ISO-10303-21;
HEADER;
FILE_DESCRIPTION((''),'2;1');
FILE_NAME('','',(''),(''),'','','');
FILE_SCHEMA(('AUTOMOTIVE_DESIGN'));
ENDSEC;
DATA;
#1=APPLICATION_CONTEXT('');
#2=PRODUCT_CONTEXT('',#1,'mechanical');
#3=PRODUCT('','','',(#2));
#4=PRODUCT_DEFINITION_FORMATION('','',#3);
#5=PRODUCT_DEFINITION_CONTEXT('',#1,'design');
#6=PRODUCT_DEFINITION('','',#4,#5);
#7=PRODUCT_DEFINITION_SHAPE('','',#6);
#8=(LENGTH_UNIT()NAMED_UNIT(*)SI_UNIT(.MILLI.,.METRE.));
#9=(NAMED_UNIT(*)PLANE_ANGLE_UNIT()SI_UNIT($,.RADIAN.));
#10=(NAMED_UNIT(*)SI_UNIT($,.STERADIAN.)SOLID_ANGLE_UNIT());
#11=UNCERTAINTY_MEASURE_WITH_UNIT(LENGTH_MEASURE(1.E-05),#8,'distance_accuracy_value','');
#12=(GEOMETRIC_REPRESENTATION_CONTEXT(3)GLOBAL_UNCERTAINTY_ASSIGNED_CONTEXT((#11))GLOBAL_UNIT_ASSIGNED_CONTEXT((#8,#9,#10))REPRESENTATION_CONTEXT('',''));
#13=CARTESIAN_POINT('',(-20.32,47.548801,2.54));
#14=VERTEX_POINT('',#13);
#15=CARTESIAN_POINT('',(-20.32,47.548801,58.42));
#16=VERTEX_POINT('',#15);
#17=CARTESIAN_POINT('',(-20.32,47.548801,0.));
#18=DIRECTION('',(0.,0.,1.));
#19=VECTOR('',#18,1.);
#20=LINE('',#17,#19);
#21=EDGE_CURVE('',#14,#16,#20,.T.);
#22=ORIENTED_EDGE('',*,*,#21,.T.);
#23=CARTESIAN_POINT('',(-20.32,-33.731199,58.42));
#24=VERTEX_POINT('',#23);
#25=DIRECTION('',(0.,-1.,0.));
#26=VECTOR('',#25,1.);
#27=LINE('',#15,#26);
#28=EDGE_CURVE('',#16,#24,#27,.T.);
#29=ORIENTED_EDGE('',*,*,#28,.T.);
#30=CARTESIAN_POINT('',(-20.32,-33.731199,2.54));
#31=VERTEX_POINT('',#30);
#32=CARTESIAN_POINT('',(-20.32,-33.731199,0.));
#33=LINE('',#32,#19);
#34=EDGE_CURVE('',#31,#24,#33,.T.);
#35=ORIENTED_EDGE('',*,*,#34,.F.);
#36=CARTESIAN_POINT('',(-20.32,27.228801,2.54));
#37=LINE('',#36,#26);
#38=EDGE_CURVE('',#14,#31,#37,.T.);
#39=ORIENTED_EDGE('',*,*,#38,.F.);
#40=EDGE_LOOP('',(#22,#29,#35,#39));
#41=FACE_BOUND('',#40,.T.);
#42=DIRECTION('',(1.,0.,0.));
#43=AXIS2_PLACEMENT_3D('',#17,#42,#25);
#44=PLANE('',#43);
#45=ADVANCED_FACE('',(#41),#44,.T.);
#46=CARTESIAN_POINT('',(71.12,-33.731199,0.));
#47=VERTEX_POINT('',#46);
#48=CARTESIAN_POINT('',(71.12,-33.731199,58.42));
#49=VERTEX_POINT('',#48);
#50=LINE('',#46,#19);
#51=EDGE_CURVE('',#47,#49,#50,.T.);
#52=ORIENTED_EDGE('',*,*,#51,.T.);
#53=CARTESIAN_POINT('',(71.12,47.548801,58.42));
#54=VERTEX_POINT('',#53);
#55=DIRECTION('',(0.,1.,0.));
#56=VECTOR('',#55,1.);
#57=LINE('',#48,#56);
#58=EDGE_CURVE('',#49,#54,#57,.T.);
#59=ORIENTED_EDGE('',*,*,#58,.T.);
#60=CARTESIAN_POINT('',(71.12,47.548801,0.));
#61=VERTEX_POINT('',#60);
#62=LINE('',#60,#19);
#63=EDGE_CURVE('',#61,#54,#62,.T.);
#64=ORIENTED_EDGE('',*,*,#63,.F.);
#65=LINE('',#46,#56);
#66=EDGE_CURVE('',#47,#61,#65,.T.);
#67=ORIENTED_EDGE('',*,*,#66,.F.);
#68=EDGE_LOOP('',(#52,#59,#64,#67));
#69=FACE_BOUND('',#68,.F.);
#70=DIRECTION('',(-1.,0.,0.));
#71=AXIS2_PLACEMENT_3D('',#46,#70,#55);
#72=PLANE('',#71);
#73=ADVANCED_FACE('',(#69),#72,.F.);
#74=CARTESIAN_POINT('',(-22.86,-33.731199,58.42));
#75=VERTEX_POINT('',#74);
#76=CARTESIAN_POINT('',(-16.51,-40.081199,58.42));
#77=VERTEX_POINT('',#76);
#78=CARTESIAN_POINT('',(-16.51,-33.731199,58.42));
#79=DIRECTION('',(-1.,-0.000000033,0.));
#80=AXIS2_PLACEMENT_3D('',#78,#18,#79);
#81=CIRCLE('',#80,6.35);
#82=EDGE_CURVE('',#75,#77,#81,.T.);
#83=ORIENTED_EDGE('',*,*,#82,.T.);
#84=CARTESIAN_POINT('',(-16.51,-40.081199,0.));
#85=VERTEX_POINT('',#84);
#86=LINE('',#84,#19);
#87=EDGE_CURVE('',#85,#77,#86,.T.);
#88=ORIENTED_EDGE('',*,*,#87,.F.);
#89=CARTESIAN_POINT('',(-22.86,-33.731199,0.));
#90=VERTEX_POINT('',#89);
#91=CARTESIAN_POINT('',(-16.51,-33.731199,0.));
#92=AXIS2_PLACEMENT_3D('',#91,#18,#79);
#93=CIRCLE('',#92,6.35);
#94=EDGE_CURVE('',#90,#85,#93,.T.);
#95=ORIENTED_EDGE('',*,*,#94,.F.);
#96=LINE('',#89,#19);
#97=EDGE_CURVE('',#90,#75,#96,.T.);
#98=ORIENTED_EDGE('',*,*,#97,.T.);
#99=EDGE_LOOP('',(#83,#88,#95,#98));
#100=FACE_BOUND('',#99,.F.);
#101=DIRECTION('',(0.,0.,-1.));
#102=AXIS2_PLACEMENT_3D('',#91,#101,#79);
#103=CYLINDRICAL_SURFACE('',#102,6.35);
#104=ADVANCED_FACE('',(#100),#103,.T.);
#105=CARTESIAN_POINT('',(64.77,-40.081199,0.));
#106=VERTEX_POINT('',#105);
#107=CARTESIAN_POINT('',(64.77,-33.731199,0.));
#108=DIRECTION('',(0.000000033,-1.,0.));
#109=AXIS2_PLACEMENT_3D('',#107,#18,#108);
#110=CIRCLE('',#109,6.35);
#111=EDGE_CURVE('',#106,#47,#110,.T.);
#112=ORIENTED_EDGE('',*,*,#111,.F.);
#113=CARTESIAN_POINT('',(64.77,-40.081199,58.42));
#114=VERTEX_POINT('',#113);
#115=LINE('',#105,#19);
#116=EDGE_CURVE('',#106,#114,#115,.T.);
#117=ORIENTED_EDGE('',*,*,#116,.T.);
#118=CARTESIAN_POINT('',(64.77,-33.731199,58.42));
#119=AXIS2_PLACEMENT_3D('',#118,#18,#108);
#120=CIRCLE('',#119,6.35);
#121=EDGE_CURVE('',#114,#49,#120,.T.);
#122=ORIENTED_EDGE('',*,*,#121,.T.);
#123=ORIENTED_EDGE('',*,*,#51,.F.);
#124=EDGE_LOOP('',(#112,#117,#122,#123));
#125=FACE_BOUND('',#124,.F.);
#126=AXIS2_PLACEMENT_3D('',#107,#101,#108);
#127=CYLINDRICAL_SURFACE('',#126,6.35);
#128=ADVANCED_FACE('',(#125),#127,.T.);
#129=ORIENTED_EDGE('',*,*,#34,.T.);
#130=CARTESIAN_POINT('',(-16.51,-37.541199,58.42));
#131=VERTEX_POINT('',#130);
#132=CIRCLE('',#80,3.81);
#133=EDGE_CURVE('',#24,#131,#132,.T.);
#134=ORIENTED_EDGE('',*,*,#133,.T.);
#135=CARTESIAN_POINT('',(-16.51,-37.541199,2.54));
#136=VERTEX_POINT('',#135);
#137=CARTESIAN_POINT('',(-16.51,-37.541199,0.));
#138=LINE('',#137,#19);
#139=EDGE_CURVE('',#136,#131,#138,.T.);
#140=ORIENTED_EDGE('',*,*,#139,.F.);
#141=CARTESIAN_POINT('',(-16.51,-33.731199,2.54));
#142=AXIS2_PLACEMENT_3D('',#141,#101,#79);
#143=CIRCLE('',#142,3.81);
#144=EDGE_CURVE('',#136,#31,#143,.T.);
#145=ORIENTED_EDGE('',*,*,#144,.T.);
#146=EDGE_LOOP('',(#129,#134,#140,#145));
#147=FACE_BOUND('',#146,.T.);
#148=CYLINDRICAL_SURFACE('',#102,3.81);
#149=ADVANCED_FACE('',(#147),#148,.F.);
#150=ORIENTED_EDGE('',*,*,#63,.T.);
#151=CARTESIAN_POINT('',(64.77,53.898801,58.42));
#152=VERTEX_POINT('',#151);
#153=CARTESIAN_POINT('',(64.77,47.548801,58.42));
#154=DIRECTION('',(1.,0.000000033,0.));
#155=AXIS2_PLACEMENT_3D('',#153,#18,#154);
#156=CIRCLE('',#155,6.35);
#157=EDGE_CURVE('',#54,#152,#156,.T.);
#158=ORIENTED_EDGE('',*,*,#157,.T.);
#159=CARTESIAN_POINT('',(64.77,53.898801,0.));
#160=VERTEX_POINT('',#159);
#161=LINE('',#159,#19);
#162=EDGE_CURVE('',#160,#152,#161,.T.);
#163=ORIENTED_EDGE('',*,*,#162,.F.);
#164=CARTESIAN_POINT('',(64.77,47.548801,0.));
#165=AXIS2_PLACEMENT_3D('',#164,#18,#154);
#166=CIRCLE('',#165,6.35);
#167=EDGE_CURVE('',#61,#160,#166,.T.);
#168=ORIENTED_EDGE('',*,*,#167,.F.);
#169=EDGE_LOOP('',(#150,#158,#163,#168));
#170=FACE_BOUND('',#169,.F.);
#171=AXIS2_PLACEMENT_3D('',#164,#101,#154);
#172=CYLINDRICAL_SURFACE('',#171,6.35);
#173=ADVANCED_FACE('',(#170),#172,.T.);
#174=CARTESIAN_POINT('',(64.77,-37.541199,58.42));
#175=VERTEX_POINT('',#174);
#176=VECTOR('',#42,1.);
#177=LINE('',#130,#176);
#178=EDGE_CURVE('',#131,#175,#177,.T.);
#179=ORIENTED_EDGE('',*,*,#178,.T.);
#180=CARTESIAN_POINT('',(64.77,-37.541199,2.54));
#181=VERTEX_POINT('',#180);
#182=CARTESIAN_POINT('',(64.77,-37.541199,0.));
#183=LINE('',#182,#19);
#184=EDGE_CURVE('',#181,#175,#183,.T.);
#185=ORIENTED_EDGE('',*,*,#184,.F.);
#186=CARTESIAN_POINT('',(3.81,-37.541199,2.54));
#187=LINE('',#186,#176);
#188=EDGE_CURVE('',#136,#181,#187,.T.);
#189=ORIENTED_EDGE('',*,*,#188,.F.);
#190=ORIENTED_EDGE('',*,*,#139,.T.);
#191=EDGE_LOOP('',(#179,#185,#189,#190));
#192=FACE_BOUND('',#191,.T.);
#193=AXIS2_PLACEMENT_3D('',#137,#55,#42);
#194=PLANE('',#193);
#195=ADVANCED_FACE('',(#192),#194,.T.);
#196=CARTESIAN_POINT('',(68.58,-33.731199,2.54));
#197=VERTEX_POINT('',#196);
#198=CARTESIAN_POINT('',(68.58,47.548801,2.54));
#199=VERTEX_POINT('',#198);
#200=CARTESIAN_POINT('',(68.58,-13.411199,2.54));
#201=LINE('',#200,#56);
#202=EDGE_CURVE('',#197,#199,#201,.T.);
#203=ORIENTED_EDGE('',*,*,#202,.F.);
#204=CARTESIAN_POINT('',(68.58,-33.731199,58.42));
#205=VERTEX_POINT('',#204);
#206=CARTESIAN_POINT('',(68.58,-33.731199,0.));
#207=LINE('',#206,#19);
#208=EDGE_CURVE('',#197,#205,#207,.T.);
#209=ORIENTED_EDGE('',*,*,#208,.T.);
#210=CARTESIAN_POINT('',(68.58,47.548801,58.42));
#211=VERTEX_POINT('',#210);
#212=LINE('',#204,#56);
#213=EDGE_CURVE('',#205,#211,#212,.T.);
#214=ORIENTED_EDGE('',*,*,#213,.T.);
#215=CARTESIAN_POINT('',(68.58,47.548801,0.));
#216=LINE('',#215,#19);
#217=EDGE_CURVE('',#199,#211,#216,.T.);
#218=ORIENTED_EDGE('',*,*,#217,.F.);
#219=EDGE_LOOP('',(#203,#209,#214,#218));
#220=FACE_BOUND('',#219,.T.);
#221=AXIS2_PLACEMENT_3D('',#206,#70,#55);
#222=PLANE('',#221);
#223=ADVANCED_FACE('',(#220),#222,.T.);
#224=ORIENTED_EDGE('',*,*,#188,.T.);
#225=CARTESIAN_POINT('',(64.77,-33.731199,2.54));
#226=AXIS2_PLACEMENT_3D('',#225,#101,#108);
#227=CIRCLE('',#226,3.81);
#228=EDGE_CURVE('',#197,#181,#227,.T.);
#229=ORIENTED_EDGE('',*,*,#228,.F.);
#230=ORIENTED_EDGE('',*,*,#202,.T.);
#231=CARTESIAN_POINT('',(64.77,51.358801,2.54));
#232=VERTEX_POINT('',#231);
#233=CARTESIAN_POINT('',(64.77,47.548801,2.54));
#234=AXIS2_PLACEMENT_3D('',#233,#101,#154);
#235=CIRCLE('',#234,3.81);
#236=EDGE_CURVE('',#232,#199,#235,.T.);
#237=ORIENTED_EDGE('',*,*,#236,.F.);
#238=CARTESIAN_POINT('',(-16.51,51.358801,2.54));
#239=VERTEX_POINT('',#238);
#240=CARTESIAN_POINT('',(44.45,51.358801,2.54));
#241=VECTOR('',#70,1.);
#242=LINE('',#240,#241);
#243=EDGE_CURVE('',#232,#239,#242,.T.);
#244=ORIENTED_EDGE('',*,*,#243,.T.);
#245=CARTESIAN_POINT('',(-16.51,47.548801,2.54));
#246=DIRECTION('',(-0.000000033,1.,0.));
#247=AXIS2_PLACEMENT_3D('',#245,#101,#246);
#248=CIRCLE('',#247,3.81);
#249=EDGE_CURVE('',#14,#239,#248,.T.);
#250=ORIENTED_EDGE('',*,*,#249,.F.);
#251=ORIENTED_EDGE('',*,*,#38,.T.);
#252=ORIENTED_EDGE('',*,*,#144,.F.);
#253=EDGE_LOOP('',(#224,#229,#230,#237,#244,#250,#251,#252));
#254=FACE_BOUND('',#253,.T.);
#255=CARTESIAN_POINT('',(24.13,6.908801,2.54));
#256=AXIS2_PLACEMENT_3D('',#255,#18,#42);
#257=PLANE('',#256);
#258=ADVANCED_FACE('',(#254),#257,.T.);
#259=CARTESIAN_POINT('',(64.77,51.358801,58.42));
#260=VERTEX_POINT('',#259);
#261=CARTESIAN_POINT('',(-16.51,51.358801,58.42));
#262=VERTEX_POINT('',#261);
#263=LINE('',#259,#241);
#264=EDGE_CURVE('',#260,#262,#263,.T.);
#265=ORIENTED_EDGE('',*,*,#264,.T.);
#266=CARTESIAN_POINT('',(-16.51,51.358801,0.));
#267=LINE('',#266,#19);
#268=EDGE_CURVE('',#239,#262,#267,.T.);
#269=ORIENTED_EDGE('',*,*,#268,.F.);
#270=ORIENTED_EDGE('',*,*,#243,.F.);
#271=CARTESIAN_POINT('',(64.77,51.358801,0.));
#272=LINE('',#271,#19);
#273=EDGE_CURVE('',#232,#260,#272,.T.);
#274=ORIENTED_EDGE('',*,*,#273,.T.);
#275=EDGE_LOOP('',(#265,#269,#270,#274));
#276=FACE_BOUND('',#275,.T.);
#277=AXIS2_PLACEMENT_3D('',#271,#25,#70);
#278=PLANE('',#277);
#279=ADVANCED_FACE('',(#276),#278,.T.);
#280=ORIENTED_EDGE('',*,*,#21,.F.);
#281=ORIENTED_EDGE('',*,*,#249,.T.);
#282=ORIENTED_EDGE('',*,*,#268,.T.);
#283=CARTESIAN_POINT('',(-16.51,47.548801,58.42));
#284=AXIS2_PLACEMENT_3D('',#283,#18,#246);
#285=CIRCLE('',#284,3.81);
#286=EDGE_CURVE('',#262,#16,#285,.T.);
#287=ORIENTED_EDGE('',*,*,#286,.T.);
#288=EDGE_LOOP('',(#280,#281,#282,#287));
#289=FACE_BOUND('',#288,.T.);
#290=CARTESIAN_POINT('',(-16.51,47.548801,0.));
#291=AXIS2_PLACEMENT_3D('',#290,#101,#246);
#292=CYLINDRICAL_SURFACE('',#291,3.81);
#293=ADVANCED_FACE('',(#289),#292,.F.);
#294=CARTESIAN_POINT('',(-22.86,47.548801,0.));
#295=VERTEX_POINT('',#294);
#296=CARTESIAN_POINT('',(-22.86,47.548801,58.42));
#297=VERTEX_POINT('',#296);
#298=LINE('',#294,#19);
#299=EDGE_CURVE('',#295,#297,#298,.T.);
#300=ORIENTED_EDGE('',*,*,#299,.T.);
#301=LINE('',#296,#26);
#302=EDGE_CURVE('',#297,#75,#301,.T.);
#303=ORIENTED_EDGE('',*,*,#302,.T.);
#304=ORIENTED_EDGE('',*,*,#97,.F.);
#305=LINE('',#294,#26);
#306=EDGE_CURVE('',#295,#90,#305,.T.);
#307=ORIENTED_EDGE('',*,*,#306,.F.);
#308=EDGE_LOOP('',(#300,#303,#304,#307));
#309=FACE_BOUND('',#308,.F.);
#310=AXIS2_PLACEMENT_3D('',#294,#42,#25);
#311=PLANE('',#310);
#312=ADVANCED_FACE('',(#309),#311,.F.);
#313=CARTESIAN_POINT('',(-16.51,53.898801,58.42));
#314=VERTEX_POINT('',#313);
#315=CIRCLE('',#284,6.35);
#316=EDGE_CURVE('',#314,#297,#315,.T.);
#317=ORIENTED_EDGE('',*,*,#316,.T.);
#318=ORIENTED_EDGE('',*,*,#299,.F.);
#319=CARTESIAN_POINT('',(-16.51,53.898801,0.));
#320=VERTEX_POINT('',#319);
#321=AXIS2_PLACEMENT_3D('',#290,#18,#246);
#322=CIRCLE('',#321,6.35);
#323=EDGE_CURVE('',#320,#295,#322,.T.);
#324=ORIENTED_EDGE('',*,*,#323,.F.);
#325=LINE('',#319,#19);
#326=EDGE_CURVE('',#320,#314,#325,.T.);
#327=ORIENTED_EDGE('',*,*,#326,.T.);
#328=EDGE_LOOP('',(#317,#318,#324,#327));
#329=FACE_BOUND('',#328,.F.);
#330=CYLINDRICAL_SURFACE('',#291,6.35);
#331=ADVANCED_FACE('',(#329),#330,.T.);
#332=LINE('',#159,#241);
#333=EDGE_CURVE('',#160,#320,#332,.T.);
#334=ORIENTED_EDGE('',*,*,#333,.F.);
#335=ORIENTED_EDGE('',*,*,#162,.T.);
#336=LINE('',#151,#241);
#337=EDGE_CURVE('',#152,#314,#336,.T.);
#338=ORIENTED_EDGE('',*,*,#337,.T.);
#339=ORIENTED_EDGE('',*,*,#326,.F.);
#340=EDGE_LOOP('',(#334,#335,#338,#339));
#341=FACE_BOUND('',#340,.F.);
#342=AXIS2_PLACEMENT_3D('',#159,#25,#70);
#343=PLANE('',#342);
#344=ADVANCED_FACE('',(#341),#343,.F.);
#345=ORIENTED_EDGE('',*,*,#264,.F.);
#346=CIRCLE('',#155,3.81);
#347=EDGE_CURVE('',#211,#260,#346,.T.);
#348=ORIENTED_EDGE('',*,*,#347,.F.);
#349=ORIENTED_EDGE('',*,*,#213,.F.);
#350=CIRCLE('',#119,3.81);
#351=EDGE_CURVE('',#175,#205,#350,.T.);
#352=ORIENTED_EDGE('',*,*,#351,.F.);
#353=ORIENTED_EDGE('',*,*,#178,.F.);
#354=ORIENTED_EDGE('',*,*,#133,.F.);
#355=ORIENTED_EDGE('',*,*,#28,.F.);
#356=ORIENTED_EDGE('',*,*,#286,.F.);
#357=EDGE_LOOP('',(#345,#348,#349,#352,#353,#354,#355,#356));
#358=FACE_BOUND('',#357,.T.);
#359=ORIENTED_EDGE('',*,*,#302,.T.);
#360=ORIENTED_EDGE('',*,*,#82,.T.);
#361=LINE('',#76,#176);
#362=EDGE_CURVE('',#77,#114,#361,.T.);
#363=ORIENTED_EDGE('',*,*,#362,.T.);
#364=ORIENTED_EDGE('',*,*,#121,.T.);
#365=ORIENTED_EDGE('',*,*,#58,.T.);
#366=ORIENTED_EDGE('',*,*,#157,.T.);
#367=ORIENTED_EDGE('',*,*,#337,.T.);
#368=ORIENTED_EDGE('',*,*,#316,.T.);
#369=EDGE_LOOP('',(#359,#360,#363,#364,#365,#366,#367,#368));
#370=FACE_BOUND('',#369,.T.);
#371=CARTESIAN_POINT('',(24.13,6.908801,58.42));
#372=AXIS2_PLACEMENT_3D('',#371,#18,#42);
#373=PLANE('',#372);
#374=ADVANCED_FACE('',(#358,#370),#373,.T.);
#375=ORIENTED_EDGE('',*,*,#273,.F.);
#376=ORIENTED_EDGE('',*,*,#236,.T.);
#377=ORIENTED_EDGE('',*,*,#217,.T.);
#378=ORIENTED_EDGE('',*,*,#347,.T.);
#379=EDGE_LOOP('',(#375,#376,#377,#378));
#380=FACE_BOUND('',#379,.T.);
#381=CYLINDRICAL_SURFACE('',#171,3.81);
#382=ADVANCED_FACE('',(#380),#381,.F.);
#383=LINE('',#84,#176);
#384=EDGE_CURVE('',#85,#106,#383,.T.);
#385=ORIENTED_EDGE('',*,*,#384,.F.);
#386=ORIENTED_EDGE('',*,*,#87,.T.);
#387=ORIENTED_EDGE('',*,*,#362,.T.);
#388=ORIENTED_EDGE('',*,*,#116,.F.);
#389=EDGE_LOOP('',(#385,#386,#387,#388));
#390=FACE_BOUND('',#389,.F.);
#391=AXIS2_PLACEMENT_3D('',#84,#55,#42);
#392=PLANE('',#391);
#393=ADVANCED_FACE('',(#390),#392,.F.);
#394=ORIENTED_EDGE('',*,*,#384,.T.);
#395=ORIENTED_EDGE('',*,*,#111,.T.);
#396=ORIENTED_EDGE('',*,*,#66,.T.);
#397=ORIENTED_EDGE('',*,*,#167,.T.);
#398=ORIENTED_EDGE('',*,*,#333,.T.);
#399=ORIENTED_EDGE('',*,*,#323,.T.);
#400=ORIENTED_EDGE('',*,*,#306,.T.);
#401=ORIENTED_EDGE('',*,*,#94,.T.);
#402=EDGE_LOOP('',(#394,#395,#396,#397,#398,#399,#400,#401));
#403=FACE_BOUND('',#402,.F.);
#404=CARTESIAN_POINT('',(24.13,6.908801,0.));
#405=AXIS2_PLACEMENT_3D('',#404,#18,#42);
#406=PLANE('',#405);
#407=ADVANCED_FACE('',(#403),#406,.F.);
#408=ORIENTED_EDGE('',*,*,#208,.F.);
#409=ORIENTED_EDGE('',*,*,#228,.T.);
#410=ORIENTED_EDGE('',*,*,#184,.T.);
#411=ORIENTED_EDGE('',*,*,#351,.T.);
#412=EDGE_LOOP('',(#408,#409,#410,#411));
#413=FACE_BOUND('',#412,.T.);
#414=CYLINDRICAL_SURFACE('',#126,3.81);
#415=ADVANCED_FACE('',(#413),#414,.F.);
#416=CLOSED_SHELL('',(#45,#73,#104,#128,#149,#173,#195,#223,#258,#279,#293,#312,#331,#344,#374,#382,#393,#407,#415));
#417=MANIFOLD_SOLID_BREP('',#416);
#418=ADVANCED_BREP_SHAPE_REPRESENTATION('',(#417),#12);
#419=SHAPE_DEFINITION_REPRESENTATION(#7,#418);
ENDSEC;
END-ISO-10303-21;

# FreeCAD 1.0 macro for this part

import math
import FreeCAD as App
import Part
import Sketcher
Q = App.Units.Quantity


def faces_at(feature, points):
    """Names of the faces that lie closest to the given points."""
    faces = feature.Shape.Faces
    near = lambda p: min(range(len(faces)), key=lambda i: faces[i].distToShape(Part.Vertex(*p))[0])
    return sorted({f"Face{near(p) + 1}" for p in points})

doc = App.newDocument("Part")
body = doc.addObject("PartDesign::Body", "Body")

# Sketch on XY plane
sketch1 = body.newObject("Sketcher::SketchObject", "Sketch")
sketch1.AttachmentSupport = (doc.getObject("XY_Plane"), [""])
sketch1.MapMode = "FlatFace"
sketch1.addGeometry([
    Part.LineSegment(App.Vector(65, 54, 0), App.Vector(-17, 54, 0)),  # 0
    Part.ArcOfCircle(Part.Circle(App.Vector(-17, 48, 0), App.Vector(0, 0, 1), 6), math.radians(90), math.radians(180)),  # 1
    Part.LineSegment(App.Vector(-23, 48, 0), App.Vector(-23, -34, 0)),  # 2
    Part.ArcOfCircle(Part.Circle(App.Vector(-17, -34, 0), App.Vector(0, 0, 1), 6), math.radians(-180), math.radians(-90)),  # 3
    Part.LineSegment(App.Vector(-17, -40, 0), App.Vector(65, -40, 0)),  # 4
    Part.ArcOfCircle(Part.Circle(App.Vector(65, -34, 0), App.Vector(0, 0, 1), 6), math.radians(-90), math.radians(0)),  # 5
    Part.LineSegment(App.Vector(71, -34, 0), App.Vector(71, 48, 0)),  # 6
    Part.ArcOfCircle(Part.Circle(App.Vector(65, 48, 0), App.Vector(0, 0, 1), 6), math.radians(0), math.radians(90)),  # 7
], False)
sketch1.addConstraint([
    Sketcher.Constraint("Tangent", 0, 2, 1, 1),
    Sketcher.Constraint("Tangent", 1, 2, 2, 1),
    Sketcher.Constraint("Tangent", 2, 2, 3, 1),
    Sketcher.Constraint("Tangent", 3, 2, 4, 1),
    Sketcher.Constraint("Tangent", 4, 2, 5, 1),
    Sketcher.Constraint("Tangent", 5, 2, 6, 1),
    Sketcher.Constraint("Tangent", 6, 2, 7, 1),
    Sketcher.Constraint("Tangent", 7, 2, 0, 1),
    Sketcher.Constraint("Horizontal", 0),
    Sketcher.Constraint("Vertical", 2),
    Sketcher.Constraint("Horizontal", 4),
    Sketcher.Constraint("Vertical", 6),
    Sketcher.Constraint("Equal", 1, 3),
    Sketcher.Constraint("Equal", 3, 5),
    Sketcher.Constraint("Equal", 5, 7),
    Sketcher.Constraint("Equal", 4, 2),
    Sketcher.Constraint("Radius", 1, Q("0.25 in")),
    Sketcher.Constraint("DistanceX", 0, 2, 0, 1, Q("3.2 in")),
    Sketcher.Constraint("DistanceX", 1, 2, -1, 1, Q("0.9 in")),
    Sketcher.Constraint("DistanceY", -1, 1, 1, 3, Q("1.872 in")),
])
pad1 = body.newObject("PartDesign::Pad", "Pad")
pad1.Profile = sketch1
pad1.Length = Q("2.3 in")
doc.recompute()

thickness = body.newObject("PartDesign::Thickness", "Thickness")
thickness.Base = (pad1, faces_at(pad1, [(24.13, 6.909, 58.42)]))
thickness.Value = Q("0.1 in")
thickness.Reversed = True
thickness.Join = "Arc"

doc.recompute()
